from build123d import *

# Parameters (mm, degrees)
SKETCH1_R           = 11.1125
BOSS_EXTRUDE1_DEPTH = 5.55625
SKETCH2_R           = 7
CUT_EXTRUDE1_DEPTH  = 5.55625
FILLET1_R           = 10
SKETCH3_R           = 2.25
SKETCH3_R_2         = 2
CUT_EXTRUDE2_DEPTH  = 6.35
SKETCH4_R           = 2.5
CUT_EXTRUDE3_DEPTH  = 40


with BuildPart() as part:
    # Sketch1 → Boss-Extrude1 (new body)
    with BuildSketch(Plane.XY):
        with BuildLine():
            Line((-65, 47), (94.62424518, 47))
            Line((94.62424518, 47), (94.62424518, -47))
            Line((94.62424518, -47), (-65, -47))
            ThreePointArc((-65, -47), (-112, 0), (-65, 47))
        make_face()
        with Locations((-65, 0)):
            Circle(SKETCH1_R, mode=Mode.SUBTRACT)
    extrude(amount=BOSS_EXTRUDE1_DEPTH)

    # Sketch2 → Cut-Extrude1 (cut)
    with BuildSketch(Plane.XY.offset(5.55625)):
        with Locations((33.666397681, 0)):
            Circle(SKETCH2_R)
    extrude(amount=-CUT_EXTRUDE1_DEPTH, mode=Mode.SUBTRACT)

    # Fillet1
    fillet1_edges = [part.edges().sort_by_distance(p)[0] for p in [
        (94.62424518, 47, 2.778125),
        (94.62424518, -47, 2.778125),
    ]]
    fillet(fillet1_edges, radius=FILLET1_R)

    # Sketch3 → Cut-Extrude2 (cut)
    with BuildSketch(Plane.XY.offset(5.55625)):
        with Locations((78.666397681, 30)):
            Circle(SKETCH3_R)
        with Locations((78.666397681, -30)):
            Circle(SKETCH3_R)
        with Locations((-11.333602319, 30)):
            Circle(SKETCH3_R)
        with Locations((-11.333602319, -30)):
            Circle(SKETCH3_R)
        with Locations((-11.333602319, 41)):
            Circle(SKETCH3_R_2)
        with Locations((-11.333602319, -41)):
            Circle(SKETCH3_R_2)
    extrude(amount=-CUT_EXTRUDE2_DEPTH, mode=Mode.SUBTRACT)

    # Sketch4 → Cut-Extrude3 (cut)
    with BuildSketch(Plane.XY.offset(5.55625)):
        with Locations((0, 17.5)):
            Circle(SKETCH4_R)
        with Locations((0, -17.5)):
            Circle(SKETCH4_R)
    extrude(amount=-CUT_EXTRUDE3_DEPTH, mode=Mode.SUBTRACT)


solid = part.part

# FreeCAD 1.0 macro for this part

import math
import FreeCAD as App
import Part
import Sketcher


def edges_at(feature, points):
    """Names of the edges that pass closest to the given points."""
    edges = feature.Shape.Edges
    near = lambda p: min(range(len(edges)), key=lambda i: edges[i].distToShape(Part.Vertex(*p))[0])
    return sorted({f"Edge{near(p) + 1}" for p in points})

doc = App.newDocument("Part")
body = doc.addObject("PartDesign::Body", "Body")

sketch1 = body.newObject("Sketcher::SketchObject", "Sketch")
sketch1.AttachmentSupport = (doc.getObject("XY_Plane"), [""])
sketch1.MapMode = "FlatFace"
sketch1.addGeometry([
    Part.LineSegment(App.Vector(94.624245, 47, 0), App.Vector(-65, 47, 0)),
    Part.ArcOfCircle(Part.Circle(App.Vector(-65, 0, 0), App.Vector(0, 0, 1), 47), math.radians(90), math.radians(270)),
    Part.LineSegment(App.Vector(-65, -47, 0), App.Vector(94.624245, -47, 0)),
    Part.LineSegment(App.Vector(94.624245, -47, 0), App.Vector(94.624245, 47, 0)),
    Part.Circle(App.Vector(-65, 0, 0), App.Vector(0, 0, 1), 11.1125),
], False)
sketch1.addConstraint([
    Sketcher.Constraint("Tangent", 0, 2, 1, 1),
    Sketcher.Constraint("Tangent", 1, 2, 2, 1),
    Sketcher.Constraint("Coincident", 2, 2, 3, 1),
    Sketcher.Constraint("Coincident", 3, 2, 0, 1),
    Sketcher.Constraint("Horizontal", 0),
    Sketcher.Constraint("Horizontal", 2),
    Sketcher.Constraint("Vertical", 3),
    Sketcher.Constraint("Coincident", 4, 3, 1, 3),
    Sketcher.Constraint("PointOnObject", 1, 3, -1),
    Sketcher.Constraint("Radius", 1, 47.0),
    Sketcher.Constraint("Diameter", 4, 22.225),
    Sketcher.Constraint("DistanceX", 1, 3, -1, 1, 65.0),
    Sketcher.Constraint("DistanceX", 0, 2, 0, 1, 159.624245),
])
pad1 = body.newObject("PartDesign::Pad", "Pad")
pad1.Profile = sketch1
pad1.Length = 5.55625

sketch2 = body.newObject("Sketcher::SketchObject", "Sketch001")
sketch2.AttachmentSupport = (doc.getObject("XY_Plane"), [""])
sketch2.MapMode = "FlatFace"
sketch2.AttachmentOffset = App.Placement(App.Vector(0, 0, 5.55625), App.Rotation())
sketch2.addGeometry(Part.Circle(App.Vector(33.666398, 0, 0), App.Vector(0, 0, 1), 7), False)
sketch2.addConstraint([
    Sketcher.Constraint("PointOnObject", 0, 3, -1),
    Sketcher.Constraint("Diameter", 0, 14.0),
    Sketcher.Constraint("DistanceX", -1, 1, 0, 3, 33.666398),
])
pocket1 = body.newObject("PartDesign::Pocket", "Pocket")
pocket1.Profile = sketch2
pocket1.Length = 5.55625
doc.recompute()

fillet = body.newObject("PartDesign::Fillet", "Fillet")
fillet.Base = (pocket1, edges_at(pocket1, [(94.624, 47, 2.778), (94.624, -47, 2.778)]))
fillet.Radius = 10

sketch3 = body.newObject("Sketcher::SketchObject", "Sketch002")
sketch3.AttachmentSupport = (doc.getObject("XY_Plane"), [""])
sketch3.MapMode = "FlatFace"
sketch3.AttachmentOffset = App.Placement(App.Vector(0, 0, 5.55625), App.Rotation())
sketch3.addGeometry([
    Part.Circle(App.Vector(78.666398, 30, 0), App.Vector(0, 0, 1), 2.25),
    Part.Circle(App.Vector(78.666398, -30, 0), App.Vector(0, 0, 1), 2.25),
    Part.Circle(App.Vector(-11.333602, 30, 0), App.Vector(0, 0, 1), 2.25),
    Part.Circle(App.Vector(-11.333602, -30, 0), App.Vector(0, 0, 1), 2.25),
    Part.Circle(App.Vector(-11.333602, 41, 0), App.Vector(0, 0, 1), 2),
    Part.Circle(App.Vector(-11.333602, -41, 0), App.Vector(0, 0, 1), 2),
], False)
sketch3.addConstraint([
    Sketcher.Constraint("Equal", 0, 1),
    Sketcher.Constraint("Equal", 1, 2),
    Sketcher.Constraint("Equal", 2, 3),
    Sketcher.Constraint("Equal", 4, 5),
    Sketcher.Constraint("Symmetric", 0, 3, 1, 3, -1),
    Sketcher.Constraint("Symmetric", 2, 3, 3, 3, -1),
    Sketcher.Constraint("Symmetric", 4, 3, 5, 3, -1),
    Sketcher.Constraint("Horizontal", 0, 3, 2, 3),
    Sketcher.Constraint("Vertical", 3, 3, 4, 3),
    Sketcher.Constraint("Diameter", 4, 4.0),
    Sketcher.Constraint("Diameter", 0, 4.5),
    Sketcher.Constraint("DistanceY", -1, 1, 0, 3, 30.0),
    Sketcher.Constraint("DistanceY", -1, 1, 4, 3, 41.0),
    Sketcher.Constraint("DistanceX", 2, 3, 0, 3, 90.0),
    Sketcher.Constraint("DistanceX", -1, 1, 0, 3, 78.666398),
])
pocket2 = body.newObject("PartDesign::Pocket", "Pocket001")
pocket2.Profile = sketch3
pocket2.Length = 6.35

sketch4 = body.newObject("Sketcher::SketchObject", "Sketch003")
sketch4.AttachmentSupport = (doc.getObject("XY_Plane"), [""])
sketch4.MapMode = "FlatFace"
sketch4.AttachmentOffset = App.Placement(App.Vector(0, 0, 5.55625), App.Rotation())
sketch4.addGeometry([
    Part.Circle(App.Vector(0, 17.5, 0), App.Vector(0, 0, 1), 2.5),
    Part.Circle(App.Vector(0, -17.5, 0), App.Vector(0, 0, 1), 2.5),
], False)
sketch4.addConstraint([
    Sketcher.Constraint("Equal", 0, 1),
    Sketcher.Constraint("Symmetric", 0, 3, 1, 3, -1, 1),
    Sketcher.Constraint("PointOnObject", 0, 3, -2),
    Sketcher.Constraint("Diameter", 0, 5.0),
    Sketcher.Constraint("DistanceY", 1, 3, 0, 3, 35.0),
])
pocket3 = body.newObject("PartDesign::Pocket", "Pocket002")
pocket3.Profile = sketch4
pocket3.Length = 40

doc.recompute()
